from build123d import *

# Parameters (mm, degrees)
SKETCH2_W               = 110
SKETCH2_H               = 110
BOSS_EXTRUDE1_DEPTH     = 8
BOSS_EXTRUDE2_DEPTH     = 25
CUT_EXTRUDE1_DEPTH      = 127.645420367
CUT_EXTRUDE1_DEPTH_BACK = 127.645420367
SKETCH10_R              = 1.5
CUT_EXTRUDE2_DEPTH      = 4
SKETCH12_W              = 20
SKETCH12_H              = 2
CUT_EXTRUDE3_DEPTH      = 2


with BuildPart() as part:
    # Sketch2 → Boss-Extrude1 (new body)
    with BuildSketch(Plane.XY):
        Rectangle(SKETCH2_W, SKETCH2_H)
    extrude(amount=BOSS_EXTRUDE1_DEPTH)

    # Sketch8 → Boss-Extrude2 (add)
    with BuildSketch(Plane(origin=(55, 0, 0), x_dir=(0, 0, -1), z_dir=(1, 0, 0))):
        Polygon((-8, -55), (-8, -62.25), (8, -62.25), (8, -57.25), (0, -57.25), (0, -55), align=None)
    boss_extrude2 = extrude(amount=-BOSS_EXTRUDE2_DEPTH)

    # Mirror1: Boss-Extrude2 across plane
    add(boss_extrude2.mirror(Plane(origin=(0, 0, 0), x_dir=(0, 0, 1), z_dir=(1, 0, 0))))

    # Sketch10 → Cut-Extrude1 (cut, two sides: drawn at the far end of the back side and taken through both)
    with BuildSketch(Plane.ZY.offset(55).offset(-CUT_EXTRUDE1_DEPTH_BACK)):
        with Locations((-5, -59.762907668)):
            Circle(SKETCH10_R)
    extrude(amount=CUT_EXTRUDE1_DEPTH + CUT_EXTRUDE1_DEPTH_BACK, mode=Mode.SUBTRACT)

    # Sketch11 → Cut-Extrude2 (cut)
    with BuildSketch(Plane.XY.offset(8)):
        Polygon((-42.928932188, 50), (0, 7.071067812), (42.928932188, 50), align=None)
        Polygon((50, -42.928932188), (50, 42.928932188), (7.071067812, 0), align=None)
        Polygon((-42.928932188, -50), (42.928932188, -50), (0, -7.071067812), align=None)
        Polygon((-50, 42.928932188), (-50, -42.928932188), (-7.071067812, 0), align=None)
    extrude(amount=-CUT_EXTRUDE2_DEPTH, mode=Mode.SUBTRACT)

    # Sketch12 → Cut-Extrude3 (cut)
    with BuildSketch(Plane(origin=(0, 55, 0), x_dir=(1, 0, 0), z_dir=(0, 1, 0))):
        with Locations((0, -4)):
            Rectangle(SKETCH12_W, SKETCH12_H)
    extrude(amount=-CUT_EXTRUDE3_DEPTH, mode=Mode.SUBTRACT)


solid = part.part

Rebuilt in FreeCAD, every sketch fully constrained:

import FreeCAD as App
import Part
import Sketcher


def add_polygon(sketch, points):
    """Adds a closed chain of lines whose ends are joined by coincident constraints."""
    first, n = sketch.GeometryCount, len(points)
    for a, b in zip(points, points[1:] + points[:1]):
        sketch.addGeometry(Part.LineSegment(App.Vector(*a, 0), App.Vector(*b, 0)), False)
    for i in range(n):
        sketch.addConstraint(Sketcher.Constraint("Coincident", first + i, 2, first + (i + 1) % n, 1))

doc = App.newDocument("Part")
body = doc.addObject("PartDesign::Body", "Body")

sketch1 = doc.addObject("Sketcher::SketchObject", "Sketch")
body.addObject(sketch1)
sketch1.AttachmentSupport = (doc.XY_Plane, [""])
sketch1.MapMode = "FlatFace"
add_polygon(sketch1, [(-55, 55), (-55, -55), (55, -55), (55, 55)])
sketch1.addConstraint(Sketcher.Constraint("Vertical", 0))
sketch1.addConstraint(Sketcher.Constraint("Horizontal", 1))
sketch1.addConstraint(Sketcher.Constraint("Vertical", 2))
sketch1.addConstraint(Sketcher.Constraint("Horizontal", 3))
sketch1.addConstraint(Sketcher.Constraint("Symmetric", 0, 2, 2, 2, -1, 1))
sketch1.addConstraint(Sketcher.Constraint("Equal", 3, 0))
sketch1.addConstraint(Sketcher.Constraint("DistanceX", 1, 1, 1, 2, 110.0))
pad1 = doc.addObject("PartDesign::Pad", "Pad")
body.addObject(pad1)
pad1.Profile = sketch1
pad1.Length = 8

sketch2 = doc.addObject("Sketcher::SketchObject", "Sketch001")
body.addObject(sketch2)
sketch2.AttachmentSupport = (doc.YZ_Plane, [""])
sketch2.MapMode = "FlatFace"
sketch2.AttachmentOffset = App.Placement(App.Vector(0, 0, 55), App.Rotation())
add_polygon(sketch2, [(-55, 8), (-62.2, 8), (-62.2, -8), (-57.2, -8), (-57.2, 0), (-55, 0)])
sketch2.addConstraint(Sketcher.Constraint("Horizontal", 0))
sketch2.addConstraint(Sketcher.Constraint("Vertical", 1))
sketch2.addConstraint(Sketcher.Constraint("Horizontal", 2))
sketch2.addConstraint(Sketcher.Constraint("Vertical", 3))
sketch2.addConstraint(Sketcher.Constraint("Horizontal", 4))
sketch2.addConstraint(Sketcher.Constraint("Vertical", 5))
sketch2.addConstraint(Sketcher.Constraint("PointOnObject", 3, 2, -1))
sketch2.addConstraint(Sketcher.Constraint("Equal", 3, 5))
sketch2.addConstraint(Sketcher.Constraint("DistanceX", 2, 1, 2, 2, 5.0))
sketch2.addConstraint(Sketcher.Constraint("DistanceY", 1, 2, 1, 1, 16.0))
sketch2.addConstraint(Sketcher.Constraint("DistanceX", 4, 2, -1, 1, 55.0))
sketch2.addConstraint(Sketcher.Constraint("DistanceX", 0, 2, 0, 1, 7.25))
pad2 = doc.addObject("PartDesign::Pad", "Pad001")
body.addObject(pad2)
pad2.Profile = sketch2
pad2.Length = 25
pad2.Reversed = True
doc.recompute()

mirrored = doc.addObject("PartDesign::Mirrored", "Mirrored")
body.addObject(mirrored)
mirrored.Originals = [pad2]
mirrored.MirrorPlane = (doc.YZ_Plane, [""])
body.Tip = mirrored

sketch3 = doc.addObject("Sketcher::SketchObject", "Sketch002")
body.addObject(sketch3)
sketch3.AttachmentSupport = (doc.YZ_Plane, [""])
sketch3.MapMode = "FlatFace"
sketch3.AttachmentOffset = App.Placement(App.Vector(0, 0, -55), App.Rotation())
sketch3.addGeometry(Part.Circle(App.Vector(-59.8, -5, 0), App.Vector(0, 0, 1), 1.5), False)
sketch3.addConstraint(Sketcher.Constraint("Diameter", 0, 3.0))
sketch3.addConstraint(Sketcher.Constraint("DistanceY", 0, 3, -1, 1, 5.0))
sketch3.addConstraint(Sketcher.Constraint("DistanceX", 0, 3, -1, 1, 59.762908))
pocket1 = doc.addObject("PartDesign::Pocket", "Pocket")
body.addObject(pocket1)
pocket1.Profile = sketch3
pocket1.Type = "ThroughAll"
pocket1.Midplane = True

sketch4 = doc.addObject("Sketcher::SketchObject", "Sketch003")
body.addObject(sketch4)
sketch4.AttachmentSupport = (doc.XY_Plane, [""])
sketch4.MapMode = "FlatFace"
sketch4.AttachmentOffset = App.Placement(App.Vector(0, 0, 8), App.Rotation())
add_polygon(sketch4, [(-43, 50), (0, 7), (43, 50)])
add_polygon(sketch4, [(50, -43), (50, 43), (7, 0)])
add_polygon(sketch4, [(-43, -50), (43, -50), (0, -7)])
add_polygon(sketch4, [(-50, 43), (-50, -43), (-7, 0)])
sketch4.addConstraint(Sketcher.Constraint("Horizontal", 2))
sketch4.addConstraint(Sketcher.Constraint("Vertical", 3))
sketch4.addConstraint(Sketcher.Constraint("Horizontal", 6))
sketch4.addConstraint(Sketcher.Constraint("Vertical", 9))
sketch4.addConstraint(Sketcher.Constraint("Symmetric", 2, 2, 6, 2, -1, 1))
sketch4.addConstraint(Sketcher.Constraint("Symmetric", 0, 2, 7, 2, -1, 1))
sketch4.addConstraint(Sketcher.Constraint("Symmetric", 3, 2, 9, 2, -1, 1))
sketch4.addConstraint(Sketcher.Constraint("Symmetric", 4, 2, 10, 2, -1, 1))
sketch4.addConstraint(Sketcher.Constraint("PointOnObject", 0, 2, -2))
sketch4.addConstraint(Sketcher.Constraint("PointOnObject", 4, 2, -1))
sketch4.addConstraint(Sketcher.Constraint("Perpendicular", 0, 1))
sketch4.addConstraint(Sketcher.Constraint("Parallel", 1, 4))
sketch4.addConstraint(Sketcher.Constraint("Perpendicular", 4, 5))
sketch4.addConstraint(Sketcher.Constraint("Perpendicular", 7, 8))
sketch4.addConstraint(Sketcher.Constraint("Perpendicular", 10, 11))
sketch4.addConstraint(Sketcher.Constraint("Horizontal", 5, 2, 9, 2))
sketch4.addConstraint(Sketcher.Constraint("Equal", 6, 3))
sketch4.addConstraint(Sketcher.Constraint("DistanceY", -1, 1, 1, 2, 50.0))
sketch4.addConstraint(Sketcher.Constraint("DistanceX", -1, 1, 3, 2, 50.0))
sketch4.addConstraint(Sketcher.Constraint("Distance", 0, 60.710678))
pocket2 = doc.addObject("PartDesign::Pocket", "Pocket001")
body.addObject(pocket2)
pocket2.Profile = sketch4
pocket2.Length = 4

sketch5 = doc.addObject("Sketcher::SketchObject", "Sketch004")
body.addObject(sketch5)
sketch5.AttachmentSupport = (doc.XZ_Plane, [""])
sketch5.MapMode = "FlatFace"
sketch5.AttachmentOffset = App.Placement(App.Vector(0, 0, -55), App.Rotation())
add_polygon(sketch5, [(-10, 3), (-10, 5), (10, 5), (10, 3)])
sketch5.addConstraint(Sketcher.Constraint("Vertical", 0))
sketch5.addConstraint(Sketcher.Constraint("Horizontal", 1))
sketch5.addConstraint(Sketcher.Constraint("Vertical", 2))
sketch5.addConstraint(Sketcher.Constraint("Horizontal", 3))
sketch5.addConstraint(Sketcher.Constraint("DistanceX", 1, 1, 1, 2, 20.0))
sketch5.addConstraint(Sketcher.Constraint("DistanceY", 0, 1, 0, 2, 2.0))
sketch5.addConstraint(Sketcher.Constraint("DistanceX", 0, 2, -1, 1, 10.0))
sketch5.addConstraint(Sketcher.Constraint("DistanceY", -1, 1, 0, 2, 5.0))
pocket3 = doc.addObject("PartDesign::Pocket", "Pocket002")
body.addObject(pocket3)
pocket3.Profile = sketch5
pocket3.Length = 2
pocket3.Reversed = True

doc.recompute()
